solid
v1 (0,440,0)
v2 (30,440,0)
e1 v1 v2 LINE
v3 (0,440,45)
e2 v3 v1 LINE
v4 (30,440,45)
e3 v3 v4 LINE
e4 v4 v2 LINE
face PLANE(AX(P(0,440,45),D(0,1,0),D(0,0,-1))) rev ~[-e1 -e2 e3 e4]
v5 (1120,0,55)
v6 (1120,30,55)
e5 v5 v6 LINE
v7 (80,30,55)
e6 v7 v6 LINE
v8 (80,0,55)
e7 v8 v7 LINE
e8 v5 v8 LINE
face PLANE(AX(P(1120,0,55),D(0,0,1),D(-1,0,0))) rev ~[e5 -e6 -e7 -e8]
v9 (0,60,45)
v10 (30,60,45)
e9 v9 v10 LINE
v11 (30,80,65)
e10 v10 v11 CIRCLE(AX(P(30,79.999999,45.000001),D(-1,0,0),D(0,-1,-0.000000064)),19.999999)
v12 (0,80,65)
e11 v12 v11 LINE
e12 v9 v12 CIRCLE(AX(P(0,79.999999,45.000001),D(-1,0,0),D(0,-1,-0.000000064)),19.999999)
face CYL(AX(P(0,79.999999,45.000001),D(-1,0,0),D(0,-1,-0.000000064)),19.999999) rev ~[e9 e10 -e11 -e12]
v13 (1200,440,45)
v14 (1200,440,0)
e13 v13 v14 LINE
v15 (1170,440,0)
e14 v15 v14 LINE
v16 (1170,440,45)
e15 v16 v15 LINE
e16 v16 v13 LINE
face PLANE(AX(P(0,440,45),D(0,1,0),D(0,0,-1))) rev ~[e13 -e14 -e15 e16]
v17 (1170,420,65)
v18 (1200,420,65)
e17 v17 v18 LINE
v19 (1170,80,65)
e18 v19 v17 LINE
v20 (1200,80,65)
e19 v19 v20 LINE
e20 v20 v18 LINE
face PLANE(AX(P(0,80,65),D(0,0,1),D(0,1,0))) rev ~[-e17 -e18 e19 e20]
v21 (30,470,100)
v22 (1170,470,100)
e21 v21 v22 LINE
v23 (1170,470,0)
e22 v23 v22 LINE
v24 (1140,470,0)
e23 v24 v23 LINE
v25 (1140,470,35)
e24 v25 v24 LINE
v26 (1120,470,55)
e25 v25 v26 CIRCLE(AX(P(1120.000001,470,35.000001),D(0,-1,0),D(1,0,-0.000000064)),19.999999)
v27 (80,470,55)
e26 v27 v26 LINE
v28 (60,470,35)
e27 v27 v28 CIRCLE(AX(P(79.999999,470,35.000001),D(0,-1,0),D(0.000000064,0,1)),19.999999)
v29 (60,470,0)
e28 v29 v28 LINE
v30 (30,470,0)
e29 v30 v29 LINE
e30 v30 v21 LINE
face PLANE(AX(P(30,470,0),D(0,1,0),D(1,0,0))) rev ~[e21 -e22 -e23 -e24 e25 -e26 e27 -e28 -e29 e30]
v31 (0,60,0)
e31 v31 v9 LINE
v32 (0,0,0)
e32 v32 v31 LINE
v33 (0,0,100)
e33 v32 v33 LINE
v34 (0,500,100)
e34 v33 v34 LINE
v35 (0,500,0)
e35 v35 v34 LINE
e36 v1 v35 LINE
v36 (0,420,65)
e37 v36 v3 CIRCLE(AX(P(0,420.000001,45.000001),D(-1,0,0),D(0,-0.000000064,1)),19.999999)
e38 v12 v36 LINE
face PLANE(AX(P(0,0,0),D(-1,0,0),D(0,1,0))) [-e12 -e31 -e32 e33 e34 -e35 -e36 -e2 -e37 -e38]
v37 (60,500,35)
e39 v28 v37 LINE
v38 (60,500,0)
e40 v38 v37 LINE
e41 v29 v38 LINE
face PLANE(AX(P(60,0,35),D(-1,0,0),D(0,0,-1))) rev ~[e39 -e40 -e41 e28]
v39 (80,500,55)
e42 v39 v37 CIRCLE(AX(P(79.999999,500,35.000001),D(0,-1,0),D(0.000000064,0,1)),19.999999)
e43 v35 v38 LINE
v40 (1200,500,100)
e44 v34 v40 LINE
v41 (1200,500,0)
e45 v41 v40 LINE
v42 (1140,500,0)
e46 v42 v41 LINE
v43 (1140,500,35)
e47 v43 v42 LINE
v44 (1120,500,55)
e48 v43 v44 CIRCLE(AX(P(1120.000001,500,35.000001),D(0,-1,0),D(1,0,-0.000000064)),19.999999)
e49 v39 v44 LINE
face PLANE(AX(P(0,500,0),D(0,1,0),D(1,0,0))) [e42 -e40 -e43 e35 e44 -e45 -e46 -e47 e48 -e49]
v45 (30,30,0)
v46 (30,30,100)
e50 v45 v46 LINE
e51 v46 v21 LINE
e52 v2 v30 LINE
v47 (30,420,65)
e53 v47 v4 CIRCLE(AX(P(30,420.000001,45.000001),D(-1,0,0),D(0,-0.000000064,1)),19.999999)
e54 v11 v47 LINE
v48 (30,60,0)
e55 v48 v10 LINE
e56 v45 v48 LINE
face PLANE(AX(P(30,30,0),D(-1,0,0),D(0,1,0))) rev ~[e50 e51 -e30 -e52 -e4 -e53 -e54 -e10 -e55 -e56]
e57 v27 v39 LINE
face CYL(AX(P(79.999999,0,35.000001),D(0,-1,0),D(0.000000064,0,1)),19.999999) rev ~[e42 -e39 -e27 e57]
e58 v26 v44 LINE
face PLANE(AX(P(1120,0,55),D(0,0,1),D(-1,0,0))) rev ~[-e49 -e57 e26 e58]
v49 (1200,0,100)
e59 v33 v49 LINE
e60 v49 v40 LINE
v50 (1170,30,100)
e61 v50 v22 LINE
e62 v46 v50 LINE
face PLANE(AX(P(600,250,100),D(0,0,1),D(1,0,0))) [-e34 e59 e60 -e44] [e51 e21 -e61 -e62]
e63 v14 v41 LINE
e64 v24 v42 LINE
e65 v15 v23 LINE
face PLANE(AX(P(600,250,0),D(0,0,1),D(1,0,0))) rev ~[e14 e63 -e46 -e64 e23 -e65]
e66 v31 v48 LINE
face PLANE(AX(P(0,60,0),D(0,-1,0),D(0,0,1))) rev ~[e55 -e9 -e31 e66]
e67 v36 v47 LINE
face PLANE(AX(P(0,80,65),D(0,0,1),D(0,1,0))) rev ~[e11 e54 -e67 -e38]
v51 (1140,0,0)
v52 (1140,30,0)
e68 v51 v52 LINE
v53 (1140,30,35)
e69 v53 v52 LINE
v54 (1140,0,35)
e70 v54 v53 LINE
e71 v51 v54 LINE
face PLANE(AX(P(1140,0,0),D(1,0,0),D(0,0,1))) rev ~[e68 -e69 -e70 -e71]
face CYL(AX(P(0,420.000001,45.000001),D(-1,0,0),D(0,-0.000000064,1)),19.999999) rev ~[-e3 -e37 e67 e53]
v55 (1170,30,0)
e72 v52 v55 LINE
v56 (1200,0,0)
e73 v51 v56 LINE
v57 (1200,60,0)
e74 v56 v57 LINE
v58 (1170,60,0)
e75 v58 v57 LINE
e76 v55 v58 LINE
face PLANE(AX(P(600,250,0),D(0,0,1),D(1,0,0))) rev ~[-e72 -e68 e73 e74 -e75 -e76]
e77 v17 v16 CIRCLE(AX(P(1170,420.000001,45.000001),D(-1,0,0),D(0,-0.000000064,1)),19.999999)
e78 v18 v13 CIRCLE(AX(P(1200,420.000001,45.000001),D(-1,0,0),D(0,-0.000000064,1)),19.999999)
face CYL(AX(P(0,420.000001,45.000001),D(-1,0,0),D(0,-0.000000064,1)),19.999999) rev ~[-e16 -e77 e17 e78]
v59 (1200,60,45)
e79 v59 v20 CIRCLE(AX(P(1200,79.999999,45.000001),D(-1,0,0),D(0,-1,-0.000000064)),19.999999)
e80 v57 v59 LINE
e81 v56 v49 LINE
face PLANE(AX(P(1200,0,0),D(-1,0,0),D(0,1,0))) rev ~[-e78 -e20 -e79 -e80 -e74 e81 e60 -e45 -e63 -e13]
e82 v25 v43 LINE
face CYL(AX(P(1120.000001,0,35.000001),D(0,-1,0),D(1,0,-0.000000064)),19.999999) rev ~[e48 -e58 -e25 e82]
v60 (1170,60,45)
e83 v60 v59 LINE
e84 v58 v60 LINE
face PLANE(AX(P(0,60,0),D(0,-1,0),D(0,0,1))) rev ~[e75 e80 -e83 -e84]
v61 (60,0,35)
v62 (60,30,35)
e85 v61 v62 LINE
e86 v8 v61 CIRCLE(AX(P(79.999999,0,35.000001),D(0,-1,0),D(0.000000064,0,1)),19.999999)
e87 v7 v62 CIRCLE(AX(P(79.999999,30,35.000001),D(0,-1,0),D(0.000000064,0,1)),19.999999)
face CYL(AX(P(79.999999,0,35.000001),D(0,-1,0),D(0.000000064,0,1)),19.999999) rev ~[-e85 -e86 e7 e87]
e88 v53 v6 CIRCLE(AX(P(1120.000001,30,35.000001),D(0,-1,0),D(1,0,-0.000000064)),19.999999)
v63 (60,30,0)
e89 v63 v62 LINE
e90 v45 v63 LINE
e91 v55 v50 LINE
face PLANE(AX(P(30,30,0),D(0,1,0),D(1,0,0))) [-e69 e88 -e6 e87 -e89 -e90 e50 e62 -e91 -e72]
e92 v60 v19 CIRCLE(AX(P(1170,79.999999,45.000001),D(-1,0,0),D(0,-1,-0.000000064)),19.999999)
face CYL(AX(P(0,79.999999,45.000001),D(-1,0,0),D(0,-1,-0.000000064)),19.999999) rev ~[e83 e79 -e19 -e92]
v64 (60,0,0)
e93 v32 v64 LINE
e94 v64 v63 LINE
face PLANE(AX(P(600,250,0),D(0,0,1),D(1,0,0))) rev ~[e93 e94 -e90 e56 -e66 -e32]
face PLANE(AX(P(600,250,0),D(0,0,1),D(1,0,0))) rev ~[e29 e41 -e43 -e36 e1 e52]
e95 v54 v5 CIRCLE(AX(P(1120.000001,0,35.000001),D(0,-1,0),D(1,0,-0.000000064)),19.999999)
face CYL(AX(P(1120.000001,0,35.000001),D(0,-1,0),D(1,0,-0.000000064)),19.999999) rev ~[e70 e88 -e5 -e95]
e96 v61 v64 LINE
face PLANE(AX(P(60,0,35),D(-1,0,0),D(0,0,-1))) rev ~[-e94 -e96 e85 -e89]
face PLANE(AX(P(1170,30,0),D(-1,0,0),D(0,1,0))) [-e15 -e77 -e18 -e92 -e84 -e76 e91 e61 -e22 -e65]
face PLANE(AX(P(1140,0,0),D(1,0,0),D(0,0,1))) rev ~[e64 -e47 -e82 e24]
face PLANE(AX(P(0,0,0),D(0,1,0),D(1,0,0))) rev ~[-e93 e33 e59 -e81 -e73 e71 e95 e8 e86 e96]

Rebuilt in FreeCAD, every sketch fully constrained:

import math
import FreeCAD as App
import Part
import Sketcher

doc = App.newDocument("Part")
body = doc.addObject("PartDesign::Body", "Body")

sketch1 = body.newObject("Sketcher::SketchObject", "Sketch")
sketch1.AttachmentSupport = (doc.getObject("XY_Plane"), [""])
sketch1.MapMode = "FlatFace"
sketch1.addGeometry(Part.LineSegment(App.Vector(0, 500, 0), App.Vector(0, 0, 0)), False)
sketch1.addGeometry(Part.LineSegment(App.Vector(0, 0, 0), App.Vector(1200, 0, 0)), False)
sketch1.addGeometry(Part.LineSegment(App.Vector(1200, 0, 0), App.Vector(1200, 500, 0)), False)
sketch1.addGeometry(Part.LineSegment(App.Vector(1200, 500, 0), App.Vector(0, 500, 0)), False)
sketch1.addGeometry(Part.LineSegment(App.Vector(1170, 30, 0), App.Vector(30, 30, 0)), False)
sketch1.addGeometry(Part.LineSegment(App.Vector(30, 30, 0), App.Vector(30, 470, 0)), False)
sketch1.addGeometry(Part.LineSegment(App.Vector(30, 470, 0), App.Vector(1170, 470, 0)), False)
sketch1.addGeometry(Part.LineSegment(App.Vector(1170, 470, 0), App.Vector(1170, 30, 0)), False)
sketch1.addConstraint(Sketcher.Constraint("Coincident", 0, 2, 1, 1))
sketch1.addConstraint(Sketcher.Constraint("Coincident", 1, 2, 2, 1))
sketch1.addConstraint(Sketcher.Constraint("Coincident", 2, 2, 3, 1))
sketch1.addConstraint(Sketcher.Constraint("Coincident", 3, 2, 0, 1))
sketch1.addConstraint(Sketcher.Constraint("Coincident", 4, 2, 5, 1))
sketch1.addConstraint(Sketcher.Constraint("Coincident", 5, 2, 6, 1))
sketch1.addConstraint(Sketcher.Constraint("Coincident", 6, 2, 7, 1))
sketch1.addConstraint(Sketcher.Constraint("Coincident", 7, 2, 4, 1))
sketch1.addConstraint(Sketcher.Constraint("Vertical", 0))
sketch1.addConstraint(Sketcher.Constraint("Horizontal", 1))
sketch1.addConstraint(Sketcher.Constraint("Vertical", 2))
sketch1.addConstraint(Sketcher.Constraint("Horizontal", 3))
sketch1.addConstraint(Sketcher.Constraint("Horizontal", 4))
sketch1.addConstraint(Sketcher.Constraint("Vertical", 5))
sketch1.addConstraint(Sketcher.Constraint("Horizontal", 6))
sketch1.addConstraint(Sketcher.Constraint("Vertical", 7))
sketch1.addConstraint(Sketcher.Constraint("Coincident", 0, 2, -1, 1))
sketch1.addConstraint(Sketcher.Constraint("DistanceX", 1, 1, 1, 2, 1200.0))
sketch1.addConstraint(Sketcher.Constraint("DistanceX", 4, 2, 4, 1, 1140.0))
sketch1.addConstraint(Sketcher.Constraint("DistanceY", 0, 2, 0, 1, 500.0))
sketch1.addConstraint(Sketcher.Constraint("DistanceY", 5, 1, 5, 2, 440.0))
sketch1.addConstraint(Sketcher.Constraint("DistanceX", -1, 1, 4, 2, 30.0))
sketch1.addConstraint(Sketcher.Constraint("DistanceY", -1, 1, 4, 2, 30.0))
pad1 = body.newObject("PartDesign::Pad", "Pad")
pad1.Profile = sketch1
pad1.Length = 100

sketch2 = body.newObject("Sketcher::SketchObject", "Sketch001")
sketch2.AttachmentSupport = (doc.getObject("XZ_Plane"), [""])
sketch2.MapMode = "FlatFace"
sketch2.addGeometry(Part.LineSegment(App.Vector(60, 35, 0), App.Vector(60, 0, 0)), False)
sketch2.addGeometry(Part.LineSegment(App.Vector(60, 0, 0), App.Vector(1140, 0, 0)), False)
sketch2.addGeometry(Part.LineSegment(App.Vector(1140, 0, 0), App.Vector(1140, 35, 0)), False)
sketch2.addGeometry(Part.ArcOfCircle(Part.Circle(App.Vector(1120, 35, 0), App.Vector(0, 0, 1), 20), math.radians(0), math.radians(90)), False)
sketch2.addGeometry(Part.LineSegment(App.Vector(1120, 55, 0), App.Vector(80, 55, 0)), False)
sketch2.addGeometry(Part.ArcOfCircle(Part.Circle(App.Vector(80, 35, 0), App.Vector(0, 0, 1), 20), math.radians(90), math.radians(180)), False)
sketch2.addConstraint(Sketcher.Constraint("Coincident", 0, 2, 1, 1))
sketch2.addConstraint(Sketcher.Constraint("Coincident", 1, 2, 2, 1))
sketch2.addConstraint(Sketcher.Constraint("Tangent", 2, 2, 3, 1))
sketch2.addConstraint(Sketcher.Constraint("Tangent", 3, 2, 4, 1))
sketch2.addConstraint(Sketcher.Constraint("Tangent", 4, 2, 5, 1))
sketch2.addConstraint(Sketcher.Constraint("Tangent", 5, 2, 0, 1))
sketch2.addConstraint(Sketcher.Constraint("Vertical", 0))
sketch2.addConstraint(Sketcher.Constraint("Horizontal", 1))
sketch2.addConstraint(Sketcher.Constraint("Vertical", 2))
sketch2.addConstraint(Sketcher.Constraint("Horizontal", 4))
sketch2.addConstraint(Sketcher.Constraint("Equal", 3, 5))
sketch2.addConstraint(Sketcher.Constraint("PointOnObject", 0, 2, -1))
sketch2.addConstraint(Sketcher.Constraint("Radius", 3, 19.999999))
sketch2.addConstraint(Sketcher.Constraint("DistanceX", 1, 1, 1, 2, 1080.0))
sketch2.addConstraint(Sketcher.Constraint("DistanceY", 0, 2, 0, 1, 35.0))
sketch2.addConstraint(Sketcher.Constraint("DistanceX", -1, 1, 3, 3, 1120.000001))
pocket1 = body.newObject("PartDesign::Pocket", "Pocket")
pocket1.Profile = sketch2
pocket1.Type = "ThroughAll"

sketch3 = body.newObject("Sketcher::SketchObject", "Sketch002")
sketch3.AttachmentSupport = (doc.getObject("YZ_Plane"), [""])
sketch3.MapMode = "FlatFace"
sketch3.addGeometry(Part.LineSegment(App.Vector(440, 45, 0), App.Vector(440, 0, 0)), False)
sketch3.addGeometry(Part.LineSegment(App.Vector(440, 0, 0), App.Vector(60, 0, 0)), False)
sketch3.addGeometry(Part.LineSegment(App.Vector(60, 0, 0), App.Vector(60, 45, 0)), False)
sketch3.addGeometry(Part.ArcOfCircle(Part.Circle(App.Vector(80, 45, 0), App.Vector(0, 0, 1), 20), math.radians(90), math.radians(180)), False)
sketch3.addGeometry(Part.LineSegment(App.Vector(80, 65, 0), App.Vector(420, 65, 0)), False)
sketch3.addGeometry(Part.ArcOfCircle(Part.Circle(App.Vector(420, 45, 0), App.Vector(0, 0, 1), 20), math.radians(0), math.radians(90)), False)
sketch3.addConstraint(Sketcher.Constraint("Coincident", 0, 2, 1, 1))
sketch3.addConstraint(Sketcher.Constraint("Coincident", 1, 2, 2, 1))
sketch3.addConstraint(Sketcher.Constraint("Tangent", 2, 2, 3, 2))
sketch3.addConstraint(Sketcher.Constraint("Tangent", 3, 1, 4, 1))
sketch3.addConstraint(Sketcher.Constraint("Tangent", 4, 2, 5, 2))
sketch3.addConstraint(Sketcher.Constraint("Tangent", 5, 1, 0, 1))
sketch3.addConstraint(Sketcher.Constraint("Vertical", 0))
sketch3.addConstraint(Sketcher.Constraint("Horizontal", 1))
sketch3.addConstraint(Sketcher.Constraint("Vertical", 2))
sketch3.addConstraint(Sketcher.Constraint("Horizontal", 4))
sketch3.addConstraint(Sketcher.Constraint("Equal", 3, 5))
sketch3.addConstraint(Sketcher.Constraint("PointOnObject", 0, 2, -1))
sketch3.addConstraint(Sketcher.Constraint("Radius", 3, 19.999999))
sketch3.addConstraint(Sketcher.Constraint("DistanceX", 1, 2, 1, 1, 380.0))
sketch3.addConstraint(Sketcher.Constraint("DistanceY", 0, 2, 0, 1, 45.0))
sketch3.addConstraint(Sketcher.Constraint("DistanceX", -1, 1, 3, 3, 79.999999))
pocket2 = body.newObject("PartDesign::Pocket", "Pocket001")
pocket2.Profile = sketch3
pocket2.Type = "ThroughAll"
pocket2.Reversed = True

doc.recompute()
